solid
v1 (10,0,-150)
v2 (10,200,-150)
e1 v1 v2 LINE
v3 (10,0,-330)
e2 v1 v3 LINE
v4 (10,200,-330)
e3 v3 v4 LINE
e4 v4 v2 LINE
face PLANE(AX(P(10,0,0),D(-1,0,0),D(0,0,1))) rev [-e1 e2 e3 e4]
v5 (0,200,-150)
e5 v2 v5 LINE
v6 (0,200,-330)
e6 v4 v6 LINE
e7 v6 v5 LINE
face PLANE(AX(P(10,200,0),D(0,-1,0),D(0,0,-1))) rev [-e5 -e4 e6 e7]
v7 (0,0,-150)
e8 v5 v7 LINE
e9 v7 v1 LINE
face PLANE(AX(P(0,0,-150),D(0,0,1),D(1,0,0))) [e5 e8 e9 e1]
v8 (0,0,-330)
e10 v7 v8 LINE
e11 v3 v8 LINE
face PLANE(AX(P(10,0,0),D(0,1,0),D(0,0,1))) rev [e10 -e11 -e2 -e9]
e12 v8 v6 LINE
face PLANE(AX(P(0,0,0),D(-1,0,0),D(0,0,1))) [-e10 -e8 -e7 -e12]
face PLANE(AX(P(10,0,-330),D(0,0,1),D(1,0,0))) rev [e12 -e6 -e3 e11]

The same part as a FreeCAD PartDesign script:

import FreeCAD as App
import Part
import Sketcher

V = App.Vector
Q = App.Units.Quantity


def add_polygon(sketch, points):
    """Adds a closed chain of lines whose ends are joined by coincident constraints."""
    first, n = sketch.GeometryCount, len(points)
    for a, b in zip(points, points[1:] + points[:1]):
        sketch.addGeometry(Part.LineSegment(App.Vector(*a, 0), App.Vector(*b, 0)), False)
    for i in range(n):
        sketch.addConstraint(Sketcher.Constraint("Coincident", first + i, 2, first + (i + 1) % n, 1))

doc = App.newDocument("Part")
body = doc.addObject("PartDesign::Body", "Body")

sketch1 = body.newObject("Sketcher::SketchObject", "Sketch")
sketch1.AttachmentSupport = (doc.getObject("YZ_Plane"), [""])
sketch1.MapMode = "FlatFace"
add_polygon(sketch1, [(200, 0), (0, 0), (0, -330), (200, -330)])
sketch1.addConstraint([
    Sketcher.Constraint("Horizontal", 0),
    Sketcher.Constraint("Vertical", 1),
    Sketcher.Constraint("Horizontal", 2),
    Sketcher.Constraint("Vertical", 3),
    Sketcher.Constraint("Coincident", 0, 2, -1, 1),
    Sketcher.Constraint("DistanceX", 0, 2, 0, 1, Q("200 mm")),
    Sketcher.Constraint("DistanceY", 1, 2, 1, 1, Q("330 mm")),
])
pad1 = body.newObject("PartDesign::Pad", "Pad")
pad1.Profile = sketch1
pad1.Length = 10

sketch2 = body.newObject("Sketcher::SketchObject", "Sketch001")
sketch2.AttachmentSupport = (doc.getObject("YZ_Plane"), [""])
sketch2.MapMode = "FlatFace"
sketch2.AttachmentOffset = App.Placement(V(0, 0, 10), App.Rotation())
sketch2.addGeometry(Part.Circle(V(25, -16, 0), V(0, 0, 1), 5), False)
sketch2.addConstraint([
    Sketcher.Constraint("Diameter", 0, Q("10 mm")),
    Sketcher.Constraint("DistanceX", -1, 1, 0, 3, Q("25 mm")),
    Sketcher.Constraint("DistanceY", 0, 3, -1, 1, Q("16 mm")),
])
pocket1 = body.newObject("PartDesign::Pocket", "Pocket")
pocket1.Profile = sketch2
pocket1.Length = 10
doc.recompute()

datumplane = body.newObject("PartDesign::Plane", "DatumPlane")
datumplane.AttachmentSupport = (doc.getObject("XZ_Plane"), [""])
datumplane.MapMode = "FlatFace"
datumplane.AttachmentOffset = App.Placement(V(0, 0, -50), App.Rotation())
mirrored = body.newObject("PartDesign::Mirrored", "Mirrored")
mirrored.Originals = [pocket1]
mirrored.MirrorPlane = (datumplane, [""])
body.Tip = mirrored
doc.recompute()

datumplane2 = body.newObject("PartDesign::Plane", "DatumPlane001")
datumplane2.AttachmentSupport = (doc.getObject("XZ_Plane"), [""])
datumplane2.MapMode = "FlatFace"
datumplane2.AttachmentOffset = App.Placement(V(0, 0, -100), App.Rotation())
mirrored2 = body.newObject("PartDesign::Mirrored", "Mirrored001")
mirrored2.Originals = [pocket1]
mirrored2.MirrorPlane = (datumplane2, [""])
body.Tip = mirrored2

sketch3 = body.newObject("Sketcher::SketchObject", "Sketch002")
sketch3.AttachmentSupport = (doc.getObject("YZ_Plane"), [""])
sketch3.MapMode = "FlatFace"
sketch3.AttachmentOffset = App.Placement(V(0, 0, 10), App.Rotation())
sketch3.addGeometry(Part.Circle(V(125, -16, 0), V(0, 0, 1), 5), False)
sketch3.addConstraint([
    Sketcher.Constraint("Diameter", 0, Q("10 mm")),
    Sketcher.Constraint("DistanceX", -1, 1, 0, 3, Q("125 mm")),
    Sketcher.Constraint("DistanceY", 0, 3, -1, 1, Q("16 mm")),
])
pocket2 = body.newObject("PartDesign::Pocket", "Pocket001")
pocket2.Profile = sketch3
pocket2.Length = 10

sketch4 = body.newObject("Sketcher::SketchObject", "Sketch003")
sketch4.AttachmentSupport = (doc.getObject("XY_Plane"), [""])
sketch4.MapMode = "FlatFace"
add_polygon(sketch4, [(0, 200), (0, 0), (10, 0), (10, 200)])
sketch4.addConstraint([
    Sketcher.Constraint("Vertical", 0),
    Sketcher.Constraint("Horizontal", 1),
    Sketcher.Constraint("Vertical", 2),
    Sketcher.Constraint("Horizontal", 3),
    Sketcher.Constraint("Coincident", 0, 2, -1, 1),
    Sketcher.Constraint("DistanceX", 1, 1, 1, 2, Q("10 mm")),
    Sketcher.Constraint("DistanceY", 0, 2, 0, 1, Q("200 mm")),
])
pocket3 = body.newObject("PartDesign::Pocket", "Pocket002")
pocket3.Profile = sketch4
pocket3.Length = 150

doc.recompute()
